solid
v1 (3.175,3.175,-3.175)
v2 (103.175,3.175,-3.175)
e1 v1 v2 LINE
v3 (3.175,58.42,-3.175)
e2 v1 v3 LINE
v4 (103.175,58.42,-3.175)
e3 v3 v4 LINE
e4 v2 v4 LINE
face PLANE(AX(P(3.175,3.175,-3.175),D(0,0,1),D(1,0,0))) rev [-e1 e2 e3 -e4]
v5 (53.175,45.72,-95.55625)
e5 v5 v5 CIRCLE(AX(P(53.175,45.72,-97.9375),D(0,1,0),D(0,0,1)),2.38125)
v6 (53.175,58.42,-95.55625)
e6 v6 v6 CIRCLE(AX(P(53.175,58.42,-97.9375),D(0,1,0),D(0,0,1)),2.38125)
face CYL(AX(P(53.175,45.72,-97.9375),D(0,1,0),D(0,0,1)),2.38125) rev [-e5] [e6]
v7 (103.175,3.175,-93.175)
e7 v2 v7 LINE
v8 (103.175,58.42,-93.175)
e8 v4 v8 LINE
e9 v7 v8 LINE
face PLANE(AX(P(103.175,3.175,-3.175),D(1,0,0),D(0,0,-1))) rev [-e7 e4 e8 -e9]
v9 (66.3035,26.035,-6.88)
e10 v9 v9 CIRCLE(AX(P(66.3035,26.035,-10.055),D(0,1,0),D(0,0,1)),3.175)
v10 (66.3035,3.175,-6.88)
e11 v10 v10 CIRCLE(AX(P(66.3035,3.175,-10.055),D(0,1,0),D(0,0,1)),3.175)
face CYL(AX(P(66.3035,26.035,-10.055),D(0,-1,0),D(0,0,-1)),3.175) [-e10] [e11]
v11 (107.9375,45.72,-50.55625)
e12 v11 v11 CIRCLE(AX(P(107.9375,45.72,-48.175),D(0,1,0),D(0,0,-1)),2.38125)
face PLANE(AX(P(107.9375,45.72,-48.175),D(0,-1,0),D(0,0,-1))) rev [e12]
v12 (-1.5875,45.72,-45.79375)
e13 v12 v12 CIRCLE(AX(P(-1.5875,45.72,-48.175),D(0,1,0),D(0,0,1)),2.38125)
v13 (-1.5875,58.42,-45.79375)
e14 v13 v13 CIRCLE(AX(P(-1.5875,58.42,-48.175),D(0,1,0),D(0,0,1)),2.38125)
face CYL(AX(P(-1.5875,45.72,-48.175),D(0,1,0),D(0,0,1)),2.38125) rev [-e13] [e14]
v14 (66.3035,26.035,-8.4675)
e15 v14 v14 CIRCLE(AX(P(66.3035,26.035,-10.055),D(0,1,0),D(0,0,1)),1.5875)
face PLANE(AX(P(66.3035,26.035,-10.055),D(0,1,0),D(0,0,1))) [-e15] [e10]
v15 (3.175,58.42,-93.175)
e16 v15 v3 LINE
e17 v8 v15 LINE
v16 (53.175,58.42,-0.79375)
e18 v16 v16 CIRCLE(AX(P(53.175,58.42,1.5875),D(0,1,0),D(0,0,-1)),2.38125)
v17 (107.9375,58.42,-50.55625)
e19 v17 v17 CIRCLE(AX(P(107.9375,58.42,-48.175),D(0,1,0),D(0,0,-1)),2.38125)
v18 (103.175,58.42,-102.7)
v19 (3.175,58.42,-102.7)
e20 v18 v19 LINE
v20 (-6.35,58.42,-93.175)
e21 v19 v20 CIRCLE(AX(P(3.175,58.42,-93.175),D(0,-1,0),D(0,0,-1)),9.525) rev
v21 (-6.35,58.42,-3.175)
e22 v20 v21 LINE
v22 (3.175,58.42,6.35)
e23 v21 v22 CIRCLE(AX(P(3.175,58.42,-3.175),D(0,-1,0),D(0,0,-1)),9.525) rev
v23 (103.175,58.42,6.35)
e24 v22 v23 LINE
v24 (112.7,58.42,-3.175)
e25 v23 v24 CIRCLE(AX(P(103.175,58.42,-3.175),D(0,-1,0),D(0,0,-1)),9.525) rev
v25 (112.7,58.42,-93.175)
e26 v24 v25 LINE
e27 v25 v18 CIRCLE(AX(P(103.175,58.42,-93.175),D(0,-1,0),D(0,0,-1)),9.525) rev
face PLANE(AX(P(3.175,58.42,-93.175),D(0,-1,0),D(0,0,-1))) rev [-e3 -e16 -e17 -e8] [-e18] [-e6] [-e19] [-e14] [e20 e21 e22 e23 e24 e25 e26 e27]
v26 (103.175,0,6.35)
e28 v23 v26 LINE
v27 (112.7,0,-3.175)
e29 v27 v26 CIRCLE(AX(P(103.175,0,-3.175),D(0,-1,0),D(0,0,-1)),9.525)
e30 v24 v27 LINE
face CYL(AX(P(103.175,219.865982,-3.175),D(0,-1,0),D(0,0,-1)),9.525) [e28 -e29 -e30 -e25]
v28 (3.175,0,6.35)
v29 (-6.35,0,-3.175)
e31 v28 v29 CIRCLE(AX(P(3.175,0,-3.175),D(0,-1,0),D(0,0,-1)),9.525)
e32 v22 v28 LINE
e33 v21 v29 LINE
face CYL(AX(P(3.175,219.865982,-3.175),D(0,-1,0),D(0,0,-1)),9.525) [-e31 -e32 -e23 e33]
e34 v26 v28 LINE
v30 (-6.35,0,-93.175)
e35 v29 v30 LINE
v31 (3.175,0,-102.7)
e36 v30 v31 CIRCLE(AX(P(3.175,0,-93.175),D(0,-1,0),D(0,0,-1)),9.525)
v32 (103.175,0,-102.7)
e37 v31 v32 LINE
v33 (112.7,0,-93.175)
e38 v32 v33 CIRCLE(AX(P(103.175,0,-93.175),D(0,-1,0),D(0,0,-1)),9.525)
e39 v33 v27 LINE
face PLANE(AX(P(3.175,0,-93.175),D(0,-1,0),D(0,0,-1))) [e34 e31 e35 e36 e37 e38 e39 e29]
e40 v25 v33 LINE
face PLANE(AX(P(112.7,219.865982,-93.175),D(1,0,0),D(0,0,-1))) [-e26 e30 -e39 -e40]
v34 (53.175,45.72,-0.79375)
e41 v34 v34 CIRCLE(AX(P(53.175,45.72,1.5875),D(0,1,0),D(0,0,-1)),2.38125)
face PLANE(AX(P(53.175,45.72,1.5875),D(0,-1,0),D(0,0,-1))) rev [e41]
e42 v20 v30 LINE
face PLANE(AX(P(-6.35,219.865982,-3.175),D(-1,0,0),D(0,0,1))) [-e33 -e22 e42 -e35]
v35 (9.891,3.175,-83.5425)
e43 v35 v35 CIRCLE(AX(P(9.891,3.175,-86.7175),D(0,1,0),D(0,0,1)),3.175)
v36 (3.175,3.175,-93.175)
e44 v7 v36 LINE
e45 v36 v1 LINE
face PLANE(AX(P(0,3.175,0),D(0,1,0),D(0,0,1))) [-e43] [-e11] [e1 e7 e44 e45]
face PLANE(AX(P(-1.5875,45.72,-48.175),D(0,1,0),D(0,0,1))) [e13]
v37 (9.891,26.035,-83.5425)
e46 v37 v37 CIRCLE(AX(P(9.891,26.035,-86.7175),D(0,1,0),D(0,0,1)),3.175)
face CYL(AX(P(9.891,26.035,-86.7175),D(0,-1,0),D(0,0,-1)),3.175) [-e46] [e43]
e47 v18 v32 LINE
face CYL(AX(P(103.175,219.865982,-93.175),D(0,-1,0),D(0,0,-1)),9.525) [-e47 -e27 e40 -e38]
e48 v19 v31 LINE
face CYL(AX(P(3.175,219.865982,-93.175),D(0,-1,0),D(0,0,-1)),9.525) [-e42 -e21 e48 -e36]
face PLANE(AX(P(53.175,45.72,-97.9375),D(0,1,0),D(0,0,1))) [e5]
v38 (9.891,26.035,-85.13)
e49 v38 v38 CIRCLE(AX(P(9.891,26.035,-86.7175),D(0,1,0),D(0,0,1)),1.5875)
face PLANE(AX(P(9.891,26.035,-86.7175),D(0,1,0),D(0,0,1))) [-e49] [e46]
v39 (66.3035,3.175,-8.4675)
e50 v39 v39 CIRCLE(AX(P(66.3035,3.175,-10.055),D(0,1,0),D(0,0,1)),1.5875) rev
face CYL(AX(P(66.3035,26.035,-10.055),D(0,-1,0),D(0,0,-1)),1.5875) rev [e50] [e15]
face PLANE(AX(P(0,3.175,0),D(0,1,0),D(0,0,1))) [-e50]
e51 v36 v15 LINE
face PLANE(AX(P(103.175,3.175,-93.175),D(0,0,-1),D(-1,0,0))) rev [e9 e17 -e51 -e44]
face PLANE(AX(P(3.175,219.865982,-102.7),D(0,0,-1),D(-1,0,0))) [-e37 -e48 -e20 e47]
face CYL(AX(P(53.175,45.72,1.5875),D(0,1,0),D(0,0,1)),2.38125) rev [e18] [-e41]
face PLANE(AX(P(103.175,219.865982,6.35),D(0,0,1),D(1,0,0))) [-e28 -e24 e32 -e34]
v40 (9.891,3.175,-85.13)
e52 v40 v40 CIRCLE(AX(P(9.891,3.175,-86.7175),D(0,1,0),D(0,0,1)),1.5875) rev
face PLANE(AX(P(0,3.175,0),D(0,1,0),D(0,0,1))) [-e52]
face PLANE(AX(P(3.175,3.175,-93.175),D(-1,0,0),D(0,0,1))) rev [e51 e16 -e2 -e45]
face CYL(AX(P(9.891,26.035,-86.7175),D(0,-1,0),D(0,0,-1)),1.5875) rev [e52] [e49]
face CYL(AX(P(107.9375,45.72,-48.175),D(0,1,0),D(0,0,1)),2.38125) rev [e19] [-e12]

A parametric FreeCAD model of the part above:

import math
import FreeCAD as App
import Part
import Sketcher

V = App.Vector
Q = App.Units.Quantity

doc = App.newDocument("Part")
params = doc.addObject("Spreadsheet::Sheet", "Params")
for row, (alias, value) in enumerate([
    ("sketch1_radius", "0.125 in"),
    ("pad1_length", "2.3 in"),
    ("pocket1_length", "2.175 in"),
    ("sketch3_diameter", "0.25 in"),
    ("sketch3_diameter2", "0.125 in"),
    ("pad2_length", "0.9 in"),
    ("sketch4_radius", "0.375 in"),
    ("sketch4_radius2", "0.125 in"),
    ("pad3_length", "2.3 in"),
    ("sketch5_diameter", "0.1875 in"),
    ("pocket2_length", "0.5 in"),
], start=1):
    params.set(f"A{row}", alias)
    params.set(f"B{row}", "=" + value)
    params.setAlias(f"B{row}", alias)

body = doc.addObject("PartDesign::Body", "Body")

sketch1 = body.newObject("Sketcher::SketchObject", "Sketch")
sketch1.AttachmentSupport = (doc.getObject("XZ_Plane"), [""])
sketch1.MapMode = "FlatFace"
sketch1.addGeometry([
    Part.LineSegment(V(3.2, 0, 0), V(103.2, 0, 0)),
    Part.ArcOfCircle(Part.Circle(V(103.2, -3.2, 0), V(0, 0, 1), 3.2), math.radians(0), math.radians(90)),
    Part.LineSegment(V(106.3, -3.2, 0), V(106.3, -93.2, 0)),
    Part.ArcOfCircle(Part.Circle(V(103.2, -93.2, 0), V(0, 0, 1), 3.2), math.radians(-90), math.radians(0)),
    Part.LineSegment(V(103.2, -96.4, 0), V(3.2, -96.4, 0)),
    Part.ArcOfCircle(Part.Circle(V(3.2, -93.2, 0), V(0, 0, 1), 3.2), math.radians(-180), math.radians(-90)),
    Part.LineSegment(V(0, -93.2, 0), V(0, -3.2, 0)),
    Part.ArcOfCircle(Part.Circle(V(3.2, -3.2, 0), V(0, 0, 1), 3.2), math.radians(90), math.radians(180)),
], False)
sketch1.addConstraint([
    Sketcher.Constraint("Tangent", 0, 2, 1, 2),
    Sketcher.Constraint("Tangent", 1, 1, 2, 1),
    Sketcher.Constraint("Tangent", 2, 2, 3, 2),
    Sketcher.Constraint("Tangent", 3, 1, 4, 1),
    Sketcher.Constraint("Tangent", 4, 2, 5, 2),
    Sketcher.Constraint("Tangent", 5, 1, 6, 1),
    Sketcher.Constraint("Tangent", 6, 2, 7, 2),
    Sketcher.Constraint("Tangent", 7, 1, 0, 1),
    Sketcher.Constraint("Horizontal", 0),
    Sketcher.Constraint("Vertical", 2),
    Sketcher.Constraint("Horizontal", 4),
    Sketcher.Constraint("Vertical", 6),
    Sketcher.Constraint("Equal", 1, 3),
    Sketcher.Constraint("Equal", 3, 5),
    Sketcher.Constraint("Equal", 5, 7),
    Sketcher.Constraint("PointOnObject", 0, 2, -1),
    Sketcher.Constraint("PointOnObject", 5, 1, -2),
    Sketcher.Constraint("Radius", 1, Q("0.125 in")),
    Sketcher.Constraint("DistanceX", 0, 1, 0, 2, 100.0),
    Sketcher.Constraint("DistanceY", 2, 2, 2, 1, 90.0),
])
sketch1.setExpression("Constraints[17]", "Params.sketch1_radius")
pad1 = body.newObject("PartDesign::Pad", "Pad")
pad1.Profile = sketch1
pad1.setExpression("Length", "Params.pad1_length")
pad1.Reversed = True

sketch2 = body.newObject("Sketcher::SketchObject", "Sketch001")
sketch2.AttachmentSupport = (doc.getObject("XZ_Plane"), [""])
sketch2.MapMode = "FlatFace"
sketch2.AttachmentOffset = App.Placement(V(0, 0, -2.3 * 25.4), App.Rotation())
sketch2.addGeometry([
    Part.LineSegment(V(3, -93, 0), V(3, -3, 0)),
    Part.LineSegment(V(3, -3, 0), V(103, -3, 0)),
    Part.LineSegment(V(103, -3, 0), V(103, -93, 0)),
    Part.LineSegment(V(103, -93, 0), V(3, -93, 0)),
], False)
sketch2.addConstraint([
    Sketcher.Constraint("Coincident", 0, 2, 1, 1),
    Sketcher.Constraint("Coincident", 1, 2, 2, 1),
    Sketcher.Constraint("Coincident", 2, 2, 3, 1),
    Sketcher.Constraint("Coincident", 3, 2, 0, 1),
    Sketcher.Constraint("Vertical", 0),
    Sketcher.Constraint("Horizontal", 1),
    Sketcher.Constraint("Vertical", 2),
    Sketcher.Constraint("Horizontal", 3),
    Sketcher.Constraint("DistanceX", -1, 1, 0, 2, Q("0.125 in")),
    Sketcher.Constraint("DistanceY", 0, 2, -1, 1, Q("0.125 in")),
    Sketcher.Constraint("DistanceX", 1, 1, 1, 2, 100.0),
    Sketcher.Constraint("DistanceY", 0, 1, 0, 2, 90.0),
])
pocket1 = body.newObject("PartDesign::Pocket", "Pocket")
pocket1.Profile = sketch2
pocket1.setExpression("Length", "Params.pocket1_length")
pocket1.Reversed = True

sketch3 = body.newObject("Sketcher::SketchObject", "Sketch002")
sketch3.AttachmentSupport = (doc.getObject("XZ_Plane"), [""])
sketch3.MapMode = "FlatFace"
sketch3.AttachmentOffset = App.Placement(V(0, 0, -0.125 * 25.4), App.Rotation())
sketch3.addGeometry([
    Part.Circle(V(66.3, -10.1, 0), V(0, 0, 1), 3.2),
    Part.Circle(V(66.3, -10.1, 0), V(0, 0, 1), 1.6),
    Part.Circle(V(9.9, -86.7, 0), V(0, 0, 1), 3.2),
    Part.Circle(V(9.9, -86.7, 0), V(0, 0, 1), 1.6),
], False)
sketch3.addConstraint([
    Sketcher.Constraint("Coincident", 1, 3, 0, 3),
    Sketcher.Constraint("Coincident", 3, 3, 2, 3),
    Sketcher.Constraint("Equal", 0, 2),
    Sketcher.Constraint("Equal", 1, 3),
    Sketcher.Constraint("Diameter", 0, Q("0.25 in")),
    Sketcher.Constraint("Diameter", 1, Q("0.125 in")),
    Sketcher.Constraint("DistanceX", -1, 1, 0, 3, 66.3035),
    Sketcher.Constraint("DistanceY", 0, 3, -1, 1, 10.055),
    Sketcher.Constraint("DistanceX", -1, 1, 2, 3, 9.891),
    Sketcher.Constraint("DistanceY", 2, 3, -1, 1, 86.7175),
])
sketch3.setExpression("Constraints[4]", "Params.sketch3_diameter")
sketch3.setExpression("Constraints[5]", "Params.sketch3_diameter2")
pad2 = body.newObject("PartDesign::Pad", "Pad001")
pad2.Profile = sketch3
pad2.setExpression("Length", "Params.pad2_length")
pad2.Reversed = True

sketch4 = body.newObject("Sketcher::SketchObject", "Sketch003")
sketch4.AttachmentSupport = (doc.getObject("XZ_Plane"), [""])
sketch4.MapMode = "FlatFace"
sketch4.addGeometry([
    Part.LineSegment(V(3.2, -102.7, 0), V(103.2, -102.7, 0)),
    Part.ArcOfCircle(Part.Circle(V(103.2, -93.2, 0), V(0, 0, 1), 9.5), math.radians(-90), math.radians(0)),
    Part.LineSegment(V(112.7, -93.2, 0), V(112.7, -3.2, 0)),
    Part.ArcOfCircle(Part.Circle(V(103.2, -3.2, 0), V(0, 0, 1), 9.5), math.radians(0), math.radians(90)),
    Part.LineSegment(V(103.2, 6.3, 0), V(3.2, 6.3, 0)),
    Part.ArcOfCircle(Part.Circle(V(3.2, -3.2, 0), V(0, 0, 1), 9.5), math.radians(90), math.radians(180)),
    Part.LineSegment(V(-6.3, -3.2, 0), V(-6.3, -93.2, 0)),
    Part.ArcOfCircle(Part.Circle(V(3.2, -93.2, 0), V(0, 0, 1), 9.5), math.radians(180), math.radians(270)),
    Part.LineSegment(V(103.2, -96.4, 0), V(3.2, -96.4, 0)),
    Part.ArcOfCircle(Part.Circle(V(3.2, -93.2, 0), V(0, 0, 1), 3.2), math.radians(-180), math.radians(-90)),
    Part.LineSegment(V(0, -93.2, 0), V(0, -3.2, 0)),
    Part.ArcOfCircle(Part.Circle(V(3.2, -3.2, 0), V(0, 0, 1), 3.2), math.radians(90), math.radians(180)),
    Part.LineSegment(V(3.2, 0, 0), V(103.2, 0, 0)),
    Part.ArcOfCircle(Part.Circle(V(103.2, -3.2, 0), V(0, 0, 1), 3.2), math.radians(0), math.radians(90)),
    Part.LineSegment(V(106.3, -3.2, 0), V(106.3, -93.2, 0)),
    Part.ArcOfCircle(Part.Circle(V(103.2, -93.2, 0), V(0, 0, 1), 3.2), math.radians(-90), math.radians(0)),
], False)
sketch4.addConstraint([
    Sketcher.Constraint("Tangent", 0, 2, 1, 1),
    Sketcher.Constraint("Tangent", 1, 2, 2, 1),
    Sketcher.Constraint("Tangent", 2, 2, 3, 1),
    Sketcher.Constraint("Tangent", 3, 2, 4, 1),
    Sketcher.Constraint("Tangent", 4, 2, 5, 1),
    Sketcher.Constraint("Tangent", 5, 2, 6, 1),
    Sketcher.Constraint("Tangent", 6, 2, 7, 1),
    Sketcher.Constraint("Tangent", 7, 2, 0, 1),
    Sketcher.Constraint("Tangent", 8, 2, 9, 2),
    Sketcher.Constraint("Tangent", 9, 1, 10, 1),
    Sketcher.Constraint("Tangent", 10, 2, 11, 2),
    Sketcher.Constraint("Tangent", 11, 1, 12, 1),
    Sketcher.Constraint("Tangent", 12, 2, 13, 2),
    Sketcher.Constraint("Tangent", 13, 1, 14, 1),
    Sketcher.Constraint("Tangent", 14, 2, 15, 2),
    Sketcher.Constraint("Tangent", 15, 1, 8, 1),
    Sketcher.Constraint("Horizontal", 0),
    Sketcher.Constraint("Vertical", 2),
    Sketcher.Constraint("Horizontal", 4),
    Sketcher.Constraint("Vertical", 6),
    Sketcher.Constraint("Horizontal", 8),
    Sketcher.Constraint("Vertical", 10),
    Sketcher.Constraint("Horizontal", 12),
    Sketcher.Constraint("Vertical", 14),
    Sketcher.Constraint("Coincident", 9, 3, 7, 3),
    Sketcher.Constraint("Coincident", 11, 3, 5, 3),
    Sketcher.Constraint("Coincident", 13, 3, 3, 3),
    Sketcher.Constraint("Equal", 1, 3),
    Sketcher.Constraint("Equal", 3, 5),
    Sketcher.Constraint("Equal", 5, 7),
    Sketcher.Constraint("Equal", 13, 15),
    Sketcher.Constraint("PointOnObject", 9, 1, -2),
    Sketcher.Constraint("PointOnObject", 11, 1, -1),
    Sketcher.Constraint("Radius", 1, Q("0.375 in")),
    Sketcher.Constraint("Radius", 9, Q("0.125 in")),
    Sketcher.Constraint("DistanceX", 0, 1, 0, 2, 100.0),
    Sketcher.Constraint("DistanceY", 2, 1, 2, 2, 90.0),
])
sketch4.setExpression("Constraints[33]", "Params.sketch4_radius")
sketch4.setExpression("Constraints[34]", "Params.sketch4_radius2")
pad3 = body.newObject("PartDesign::Pad", "Pad002")
pad3.Profile = sketch4
pad3.setExpression("Length", "Params.pad3_length")
pad3.Reversed = True

sketch5 = body.newObject("Sketcher::SketchObject", "Sketch004")
sketch5.AttachmentSupport = (doc.getObject("XZ_Plane"), [""])
sketch5.MapMode = "FlatFace"
sketch5.AttachmentOffset = App.Placement(V(0, 0, -2.3 * 25.4), App.Rotation())
sketch5.addGeometry([
    Part.Circle(V(-1.6, -48.2, 0), V(0, 0, 1), 2.4),
    Part.Circle(V(53.2, -97.9, 0), V(0, 0, 1), 2.4),
    Part.Circle(V(107.9, -48.2, 0), V(0, 0, 1), 2.4),
    Part.Circle(V(53.2, 1.6, 0), V(0, 0, 1), 2.4),
], False)
sketch5.addConstraint([
    Sketcher.Constraint("Equal", 0, 1),
    Sketcher.Constraint("Equal", 1, 2),
    Sketcher.Constraint("Equal", 2, 3),
    Sketcher.Constraint("Horizontal", 0, 3, 2, 3),
    Sketcher.Constraint("Vertical", 1, 3, 3, 3),
    Sketcher.Constraint("Diameter", 0, Q("0.1875 in")),
    Sketcher.Constraint("DistanceX", 0, 3, -1, 1, Q("0.0625 in")),
    Sketcher.Constraint("DistanceY", -1, 1, 3, 3, Q("0.0625 in")),
    Sketcher.Constraint("DistanceY", 0, 3, -1, 1, 48.175),
    Sketcher.Constraint("DistanceX", -1, 1, 1, 3, 53.175),
    Sketcher.Constraint("DistanceY", 1, 3, -1, 1, 97.9375),
    Sketcher.Constraint("DistanceX", -1, 1, 2, 3, 107.9375),
])
sketch5.setExpression("Constraints[5]", "Params.sketch5_diameter")
pocket2 = body.newObject("PartDesign::Pocket", "Pocket001")
pocket2.Profile = sketch5
pocket2.setExpression("Length", "Params.pocket2_length")
pocket2.Reversed = True

doc.recompute()
